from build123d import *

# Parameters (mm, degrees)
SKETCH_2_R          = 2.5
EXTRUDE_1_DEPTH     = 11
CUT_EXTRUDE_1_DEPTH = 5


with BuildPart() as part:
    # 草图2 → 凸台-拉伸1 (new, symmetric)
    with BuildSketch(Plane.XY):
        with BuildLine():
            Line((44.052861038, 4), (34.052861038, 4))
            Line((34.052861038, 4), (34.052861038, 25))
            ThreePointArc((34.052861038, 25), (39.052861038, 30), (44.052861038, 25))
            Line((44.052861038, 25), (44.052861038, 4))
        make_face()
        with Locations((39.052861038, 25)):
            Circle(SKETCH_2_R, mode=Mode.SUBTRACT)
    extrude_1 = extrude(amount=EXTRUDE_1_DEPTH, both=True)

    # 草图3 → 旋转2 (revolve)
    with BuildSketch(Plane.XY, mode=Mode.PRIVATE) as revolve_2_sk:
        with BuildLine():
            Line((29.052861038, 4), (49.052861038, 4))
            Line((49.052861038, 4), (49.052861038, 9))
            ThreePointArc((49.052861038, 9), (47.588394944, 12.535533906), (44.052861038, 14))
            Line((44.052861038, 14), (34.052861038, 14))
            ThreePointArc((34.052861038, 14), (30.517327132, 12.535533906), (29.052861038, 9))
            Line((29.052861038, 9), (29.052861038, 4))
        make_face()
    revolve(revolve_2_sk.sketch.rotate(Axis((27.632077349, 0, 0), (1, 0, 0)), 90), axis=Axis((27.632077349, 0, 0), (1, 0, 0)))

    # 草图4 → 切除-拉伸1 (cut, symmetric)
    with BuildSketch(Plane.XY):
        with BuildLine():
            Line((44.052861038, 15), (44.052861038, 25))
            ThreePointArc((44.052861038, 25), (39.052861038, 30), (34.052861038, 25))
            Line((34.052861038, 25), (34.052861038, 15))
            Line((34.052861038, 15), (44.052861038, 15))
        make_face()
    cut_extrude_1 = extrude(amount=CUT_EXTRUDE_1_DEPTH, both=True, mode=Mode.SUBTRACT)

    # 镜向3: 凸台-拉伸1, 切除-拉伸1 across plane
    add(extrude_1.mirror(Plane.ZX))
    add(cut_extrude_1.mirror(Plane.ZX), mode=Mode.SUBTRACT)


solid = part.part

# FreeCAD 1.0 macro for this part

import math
import FreeCAD as App
import Part
import Sketcher
from FreeCAD import Vector

doc = App.newDocument("Part")
body = doc.addObject("PartDesign::Body", "Body")

# Sketch on XY plane
sketch1 = doc.addObject("Sketcher::SketchObject", "Sketch")
body.addObject(sketch1)
sketch1.AttachmentSupport = (doc.XY_Plane, [""])
sketch1.MapMode = "FlatFace"
sketch1.addGeometry(Part.LineSegment(Vector(34.1, 4, 0), Vector(44.1, 4, 0)), False)
sketch1.addGeometry(Part.LineSegment(Vector(44.1, 4, 0), Vector(44.1, 25, 0)), False)
sketch1.addGeometry(Part.ArcOfCircle(Part.Circle(Vector(39.1, 25, 0), Vector(0, 0, 1), 5), math.radians(0), math.radians(180)), False)
sketch1.addGeometry(Part.LineSegment(Vector(34.1, 25, 0), Vector(34.1, 4, 0)), False)
sketch1.addGeometry(Part.Circle(Vector(39.1, 25, 0), Vector(0, 0, 1), 2.5), False)
sketch1.addConstraint(Sketcher.Constraint("Coincident", 0, 2, 1, 1))
sketch1.addConstraint(Sketcher.Constraint("Tangent", 1, 2, 2, 1))
sketch1.addConstraint(Sketcher.Constraint("Tangent", 2, 2, 3, 1))
sketch1.addConstraint(Sketcher.Constraint("Coincident", 3, 2, 0, 1))
sketch1.addConstraint(Sketcher.Constraint("Horizontal", 0))
sketch1.addConstraint(Sketcher.Constraint("Vertical", 1))
sketch1.addConstraint(Sketcher.Constraint("Vertical", 3))
sketch1.addConstraint(Sketcher.Constraint("Coincident", 4, 3, 2, 3))
sketch1.addConstraint(Sketcher.Constraint("Diameter", 4, 5.0))
sketch1.addConstraint(Sketcher.Constraint("Radius", 2, 5.0))
sketch1.addConstraint(Sketcher.Constraint("DistanceY", 1, 1, 1, 2, 21.0))
sketch1.addConstraint(Sketcher.Constraint("DistanceY", -1, 1, 2, 3, 25.0))
sketch1.addConstraint(Sketcher.Constraint("DistanceX", -1, 1, 2, 3, 39.052861))
pad1 = doc.addObject("PartDesign::Pad", "Pad")
body.addObject(pad1)
pad1.Profile = sketch1
pad1.Length = 22
pad1.Midplane = True

# Sketch on XY plane
sketch2 = doc.addObject("Sketcher::SketchObject", "Sketch001")
body.addObject(sketch2)
sketch2.AttachmentSupport = (doc.XY_Plane, [""])
sketch2.MapMode = "FlatFace"
sketch2.addGeometry(Part.LineSegment(Vector(29, 4, 0), Vector(49, 4, 0)), False)
sketch2.addGeometry(Part.LineSegment(Vector(49, 4, 0), Vector(49, 9, 0)), False)
sketch2.addGeometry(Part.ArcOfCircle(Part.Circle(Vector(44, 9, 0), Vector(0, 0, 1), 5), math.radians(0), math.radians(90)), False)
sketch2.addGeometry(Part.LineSegment(Vector(44, 14, 0), Vector(34, 14, 0)), False)
sketch2.addGeometry(Part.ArcOfCircle(Part.Circle(Vector(34, 9, 0), Vector(0, 0, 1), 5), math.radians(90), math.radians(180)), False)
sketch2.addGeometry(Part.LineSegment(Vector(29, 9, 0), Vector(29, 4, 0)), False)
sketch2.addConstraint(Sketcher.Constraint("Coincident", 0, 2, 1, 1))
sketch2.addConstraint(Sketcher.Constraint("Tangent", 1, 2, 2, 1))
sketch2.addConstraint(Sketcher.Constraint("Tangent", 2, 2, 3, 1))
sketch2.addConstraint(Sketcher.Constraint("Tangent", 3, 2, 4, 1))
sketch2.addConstraint(Sketcher.Constraint("Tangent", 4, 2, 5, 1))
sketch2.addConstraint(Sketcher.Constraint("Coincident", 5, 2, 0, 1))
sketch2.addConstraint(Sketcher.Constraint("Horizontal", 0))
sketch2.addConstraint(Sketcher.Constraint("Vertical", 1))
sketch2.addConstraint(Sketcher.Constraint("Horizontal", 3))
sketch2.addConstraint(Sketcher.Constraint("Vertical", 5))
sketch2.addConstraint(Sketcher.Constraint("Equal", 2, 4))
sketch2.addConstraint(Sketcher.Constraint("Radius", 2, 5.0))
sketch2.addConstraint(Sketcher.Constraint("DistanceX", 0, 1, 0, 2, 20.0))
sketch2.addConstraint(Sketcher.Constraint("DistanceY", 1, 1, 1, 2, 5.0))
sketch2.addConstraint(Sketcher.Constraint("DistanceY", -1, 1, 2, 3, 9.0))
sketch2.addConstraint(Sketcher.Constraint("DistanceX", -1, 1, 2, 3, 44.052861))
revolution = doc.addObject("PartDesign::Revolution", "Revolution")
body.addObject(revolution)
revolution.Profile = sketch2
revolution.ReferenceAxis = (sketch2, ["H_Axis"])
revolution.Angle = 360

# Sketch on XY plane
sketch3 = doc.addObject("Sketcher::SketchObject", "Sketch002")
body.addObject(sketch3)
sketch3.AttachmentSupport = (doc.XY_Plane, [""])
sketch3.MapMode = "FlatFace"
sketch3.addGeometry(Part.LineSegment(Vector(44, 15, 0), Vector(44, 25, 0)), False)
sketch3.addGeometry(Part.ArcOfCircle(Part.Circle(Vector(39, 25, 0), Vector(0, 0, 1), 5), math.radians(0), math.radians(180)), False)
sketch3.addGeometry(Part.LineSegment(Vector(34, 25, 0), Vector(34, 15, 0)), False)
sketch3.addGeometry(Part.LineSegment(Vector(34, 15, 0), Vector(44, 15, 0)), False)
sketch3.addConstraint(Sketcher.Constraint("Tangent", 0, 2, 1, 1))
sketch3.addConstraint(Sketcher.Constraint("Tangent", 1, 2, 2, 1))
sketch3.addConstraint(Sketcher.Constraint("Coincident", 2, 2, 3, 1))
sketch3.addConstraint(Sketcher.Constraint("Coincident", 3, 2, 0, 1))
sketch3.addConstraint(Sketcher.Constraint("Vertical", 0))
sketch3.addConstraint(Sketcher.Constraint("Vertical", 2))
sketch3.addConstraint(Sketcher.Constraint("Horizontal", 3))
sketch3.addConstraint(Sketcher.Constraint("Equal", 3, 0))
sketch3.addConstraint(Sketcher.Constraint("Radius", 1, 5.0))
sketch3.addConstraint(Sketcher.Constraint("DistanceY", -1, 1, 1, 3, 25.0))
sketch3.addConstraint(Sketcher.Constraint("DistanceX", -1, 1, 1, 3, 39.052861))
pocket1 = doc.addObject("PartDesign::Pocket", "Pocket")
body.addObject(pocket1)
pocket1.Profile = sketch3
pocket1.Length = 10
pocket1.Midplane = True
doc.recompute()

mirrored = doc.addObject("PartDesign::Mirrored", "Mirrored")
body.addObject(mirrored)
mirrored.Originals = [pad1, pocket1]
mirrored.MirrorPlane = (doc.XZ_Plane, [""])
body.Tip = mirrored

doc.recompute()
